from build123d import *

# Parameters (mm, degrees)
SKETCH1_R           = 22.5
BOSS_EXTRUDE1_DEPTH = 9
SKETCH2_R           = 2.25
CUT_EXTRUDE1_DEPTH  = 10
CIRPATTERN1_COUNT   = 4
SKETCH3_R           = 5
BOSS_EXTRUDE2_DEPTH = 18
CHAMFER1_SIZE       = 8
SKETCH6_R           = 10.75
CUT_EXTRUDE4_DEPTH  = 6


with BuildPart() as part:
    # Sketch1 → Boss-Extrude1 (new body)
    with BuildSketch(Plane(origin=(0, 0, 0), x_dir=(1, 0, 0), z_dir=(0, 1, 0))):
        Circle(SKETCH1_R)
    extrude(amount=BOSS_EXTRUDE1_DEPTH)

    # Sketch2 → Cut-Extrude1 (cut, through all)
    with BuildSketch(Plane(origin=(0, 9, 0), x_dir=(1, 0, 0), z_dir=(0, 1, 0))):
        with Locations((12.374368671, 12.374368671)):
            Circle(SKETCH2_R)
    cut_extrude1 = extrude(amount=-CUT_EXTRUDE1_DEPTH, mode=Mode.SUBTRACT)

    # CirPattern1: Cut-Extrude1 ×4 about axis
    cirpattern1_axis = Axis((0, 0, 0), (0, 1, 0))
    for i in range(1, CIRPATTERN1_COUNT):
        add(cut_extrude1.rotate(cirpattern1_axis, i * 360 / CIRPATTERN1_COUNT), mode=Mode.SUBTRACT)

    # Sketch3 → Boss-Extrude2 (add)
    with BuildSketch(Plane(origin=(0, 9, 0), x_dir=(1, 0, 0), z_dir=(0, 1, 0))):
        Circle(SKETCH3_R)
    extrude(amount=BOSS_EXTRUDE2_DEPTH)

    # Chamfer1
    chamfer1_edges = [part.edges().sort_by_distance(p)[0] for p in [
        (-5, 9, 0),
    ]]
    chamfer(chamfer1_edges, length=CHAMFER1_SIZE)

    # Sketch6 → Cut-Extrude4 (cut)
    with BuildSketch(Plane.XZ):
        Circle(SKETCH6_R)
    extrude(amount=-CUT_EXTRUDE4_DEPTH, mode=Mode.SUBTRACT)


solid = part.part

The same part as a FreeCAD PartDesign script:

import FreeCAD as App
import Part
import Sketcher

V = App.Vector
Q = App.Units.Quantity


def edges_at(feature, points):
    """Names of the edges that pass closest to the given points."""
    edges = feature.Shape.Edges
    near = lambda p: min(range(len(edges)), key=lambda i: edges[i].distToShape(Part.Vertex(*p))[0])
    return sorted({f"Edge{near(p) + 1}" for p in points})

doc = App.newDocument("Part")
params = doc.addObject("Spreadsheet::Sheet", "Params")
for row, (alias, value) in enumerate([
    ("sketch1_diameter", "45 mm"),
    ("pad1_length", "9 mm"),
    ("sketch2_diameter", "4.5 mm"),
    ("sketch3_diameter", "10 mm"),
    ("pad2_length", "18 mm"),
    ("chamfer_size", "8 mm"),
    ("sketch4_diameter", "21.5 mm"),
    ("pocket2_length", "6 mm"),
], start=1):
    params.set(f"A{row}", alias)
    params.set(f"B{row}", "=" + value)
    params.setAlias(f"B{row}", alias)

body = doc.addObject("PartDesign::Body", "Body")

# Sketch on XZ plane
sketch1 = body.newObject("Sketcher::SketchObject", "Sketch")
sketch1.AttachmentSupport = (doc.getObject("XZ_Plane"), [""])
sketch1.MapMode = "FlatFace"
sketch1.addGeometry(Part.Circle(V(0, 0, 0), V(0, 0, 1), 22), False)
sketch1.addConstraint([
    Sketcher.Constraint("Coincident", 0, 3, -1, 1),
    Sketcher.Constraint("Diameter", 0, Q("45 mm")),
])
sketch1.setExpression("Constraints[1]", "Params.sketch1_diameter")
pad1 = body.newObject("PartDesign::Pad", "Pad")
pad1.Profile = sketch1
pad1.setExpression("Length", "Params.pad1_length")
pad1.Reversed = True

# Sketch on XZ plane
sketch2 = body.newObject("Sketcher::SketchObject", "Sketch001")
sketch2.AttachmentSupport = (doc.getObject("XZ_Plane"), [""])
sketch2.MapMode = "FlatFace"
sketch2.AttachmentOffset = App.Placement(V(0, 0, -9), App.Rotation())
sketch2.addGeometry(Part.Circle(V(12.4, -12.4, 0), V(0, 0, 1), 2.2), False)
sketch2.addConstraint([
    Sketcher.Constraint("Diameter", 0, Q("4.5 mm")),
    Sketcher.Constraint("DistanceX", -1, 1, 0, 3, Q("12.374369 mm")),
    Sketcher.Constraint("DistanceY", 0, 3, -1, 1, Q("12.374369 mm")),
])
sketch2.setExpression("Constraints[0]", "Params.sketch2_diameter")
pocket1 = body.newObject("PartDesign::Pocket", "Pocket")
pocket1.Profile = sketch2
pocket1.Type = "ThroughAll"
pocket1.Reversed = True
doc.recompute()

polarpattern = body.newObject("PartDesign::PolarPattern", "PolarPattern")
polarpattern.Originals = [pocket1]
polarpattern.Axis = (doc.getObject("Y_Axis"), [""])
polarpattern.Angle = 360
polarpattern.Occurrences = 4
body.Tip = polarpattern

# Sketch on XZ plane
sketch3 = body.newObject("Sketcher::SketchObject", "Sketch002")
sketch3.AttachmentSupport = (doc.getObject("XZ_Plane"), [""])
sketch3.MapMode = "FlatFace"
sketch3.AttachmentOffset = App.Placement(V(0, 0, -9), App.Rotation())
sketch3.addGeometry(Part.Circle(V(0, 0, 0), V(0, 0, 1), 5), False)
sketch3.addConstraint([
    Sketcher.Constraint("Coincident", 0, 3, -1, 1),
    Sketcher.Constraint("Diameter", 0, Q("10 mm")),
])
sketch3.setExpression("Constraints[1]", "Params.sketch3_diameter")
pad2 = body.newObject("PartDesign::Pad", "Pad001")
pad2.Profile = sketch3
pad2.setExpression("Length", "Params.pad2_length")
pad2.Reversed = True
doc.recompute()

chamfer = body.newObject("PartDesign::Chamfer", "Chamfer")
chamfer.Base = (pad2, edges_at(pad2, [(-5, 9, 0)]))
chamfer.setExpression("Size", "Params.chamfer_size")

# Sketch on XZ plane
sketch4 = body.newObject("Sketcher::SketchObject", "Sketch003")
sketch4.AttachmentSupport = (doc.getObject("XZ_Plane"), [""])
sketch4.MapMode = "FlatFace"
sketch4.addGeometry(Part.Circle(V(0, 0, 0), V(0, 0, 1), 11), False)
sketch4.addConstraint([
    Sketcher.Constraint("Coincident", 0, 3, -1, 1),
    Sketcher.Constraint("Diameter", 0, Q("21.5 mm")),
])
sketch4.setExpression("Constraints[1]", "Params.sketch4_diameter")
pocket2 = body.newObject("PartDesign::Pocket", "Pocket001")
pocket2.Profile = sketch4
pocket2.setExpression("Length", "Params.pocket2_length")

doc.recompute()
